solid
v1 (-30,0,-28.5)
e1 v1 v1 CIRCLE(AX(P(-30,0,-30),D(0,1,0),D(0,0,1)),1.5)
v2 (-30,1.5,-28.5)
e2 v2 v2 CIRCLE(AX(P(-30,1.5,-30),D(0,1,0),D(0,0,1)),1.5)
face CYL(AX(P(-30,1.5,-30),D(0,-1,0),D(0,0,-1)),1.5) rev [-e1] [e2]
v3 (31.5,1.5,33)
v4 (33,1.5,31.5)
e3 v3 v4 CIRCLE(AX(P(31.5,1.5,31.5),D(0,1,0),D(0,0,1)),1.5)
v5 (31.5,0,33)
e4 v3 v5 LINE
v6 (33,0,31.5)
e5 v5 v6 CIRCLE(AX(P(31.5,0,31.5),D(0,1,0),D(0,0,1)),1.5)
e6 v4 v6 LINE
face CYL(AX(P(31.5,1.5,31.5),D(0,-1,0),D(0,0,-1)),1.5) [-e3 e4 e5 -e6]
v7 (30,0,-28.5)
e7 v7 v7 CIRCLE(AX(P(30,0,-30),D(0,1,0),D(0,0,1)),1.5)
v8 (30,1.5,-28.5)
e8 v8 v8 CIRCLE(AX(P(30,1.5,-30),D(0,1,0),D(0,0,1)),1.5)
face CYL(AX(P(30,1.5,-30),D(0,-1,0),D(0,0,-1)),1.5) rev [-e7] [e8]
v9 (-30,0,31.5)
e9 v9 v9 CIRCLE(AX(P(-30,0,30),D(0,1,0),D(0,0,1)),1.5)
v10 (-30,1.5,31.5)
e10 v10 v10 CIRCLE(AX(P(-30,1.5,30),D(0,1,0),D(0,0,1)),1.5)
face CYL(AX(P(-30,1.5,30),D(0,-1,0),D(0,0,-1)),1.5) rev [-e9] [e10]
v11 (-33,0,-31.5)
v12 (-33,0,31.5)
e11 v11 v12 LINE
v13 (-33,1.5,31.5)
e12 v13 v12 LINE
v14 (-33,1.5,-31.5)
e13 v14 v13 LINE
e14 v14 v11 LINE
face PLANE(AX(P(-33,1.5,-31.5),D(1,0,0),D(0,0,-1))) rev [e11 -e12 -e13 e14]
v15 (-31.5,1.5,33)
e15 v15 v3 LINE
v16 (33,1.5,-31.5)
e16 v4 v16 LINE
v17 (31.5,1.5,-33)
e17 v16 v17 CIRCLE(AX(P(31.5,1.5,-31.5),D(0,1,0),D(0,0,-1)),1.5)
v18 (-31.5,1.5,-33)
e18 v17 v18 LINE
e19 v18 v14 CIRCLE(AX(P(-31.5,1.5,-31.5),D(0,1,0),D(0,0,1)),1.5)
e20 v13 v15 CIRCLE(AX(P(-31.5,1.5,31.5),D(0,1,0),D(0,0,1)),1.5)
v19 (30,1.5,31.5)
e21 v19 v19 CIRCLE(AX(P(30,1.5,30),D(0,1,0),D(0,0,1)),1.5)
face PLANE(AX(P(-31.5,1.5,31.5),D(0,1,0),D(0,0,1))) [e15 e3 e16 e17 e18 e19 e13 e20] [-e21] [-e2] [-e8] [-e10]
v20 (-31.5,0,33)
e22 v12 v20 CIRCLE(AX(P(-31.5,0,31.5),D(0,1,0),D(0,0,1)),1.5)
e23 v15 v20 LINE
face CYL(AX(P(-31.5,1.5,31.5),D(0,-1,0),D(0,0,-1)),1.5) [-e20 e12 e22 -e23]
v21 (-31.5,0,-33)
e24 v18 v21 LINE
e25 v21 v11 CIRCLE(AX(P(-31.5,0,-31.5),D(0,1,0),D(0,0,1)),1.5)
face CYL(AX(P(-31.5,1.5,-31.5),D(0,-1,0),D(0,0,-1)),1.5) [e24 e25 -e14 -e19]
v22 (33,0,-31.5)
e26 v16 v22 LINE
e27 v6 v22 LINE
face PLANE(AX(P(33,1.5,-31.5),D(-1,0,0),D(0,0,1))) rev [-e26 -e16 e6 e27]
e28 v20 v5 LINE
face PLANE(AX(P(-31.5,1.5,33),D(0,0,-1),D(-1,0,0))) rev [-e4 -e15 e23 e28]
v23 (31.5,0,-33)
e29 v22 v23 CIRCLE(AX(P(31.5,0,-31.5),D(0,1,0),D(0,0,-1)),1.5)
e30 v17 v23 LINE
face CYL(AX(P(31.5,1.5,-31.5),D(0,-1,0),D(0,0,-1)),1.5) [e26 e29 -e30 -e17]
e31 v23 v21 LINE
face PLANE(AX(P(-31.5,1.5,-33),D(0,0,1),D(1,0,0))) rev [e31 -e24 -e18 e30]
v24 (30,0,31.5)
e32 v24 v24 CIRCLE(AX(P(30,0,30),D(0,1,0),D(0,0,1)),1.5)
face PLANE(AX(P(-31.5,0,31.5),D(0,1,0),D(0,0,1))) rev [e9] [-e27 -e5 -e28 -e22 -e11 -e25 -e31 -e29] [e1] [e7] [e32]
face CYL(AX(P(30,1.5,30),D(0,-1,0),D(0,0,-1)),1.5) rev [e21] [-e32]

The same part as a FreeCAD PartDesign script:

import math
import FreeCAD as App
import Part
import Sketcher

V = App.Vector
Q = App.Units.Quantity

doc = App.newDocument("Part")
body = doc.addObject("PartDesign::Body", "Body")

sketch1 = body.newObject("Sketcher::SketchObject", "Sketch")
sketch1.AttachmentSupport = (doc.getObject("XZ_Plane"), [""])
sketch1.MapMode = "FlatFace"
sketch1.addGeometry([
    Part.LineSegment(V(31.5, -33, 0), V(-31.5, -33, 0)),
    Part.ArcOfCircle(Part.Circle(V(-31.5, -31.5, 0), V(0, 0, 1), 1.5), math.radians(180), math.radians(270)),
    Part.LineSegment(V(-33, -31.5, 0), V(-33, 31.5, 0)),
    Part.ArcOfCircle(Part.Circle(V(-31.5, 31.5, 0), V(0, 0, 1), 1.5), math.radians(90), math.radians(180)),
    Part.LineSegment(V(-31.5, 33, 0), V(31.5, 33, 0)),
    Part.ArcOfCircle(Part.Circle(V(31.5, 31.5, 0), V(0, 0, 1), 1.5), math.radians(0), math.radians(90)),
    Part.LineSegment(V(33, 31.5, 0), V(33, -31.5, 0)),
    Part.ArcOfCircle(Part.Circle(V(31.5, -31.5, 0), V(0, 0, 1), 1.5), math.radians(-90), math.radians(0)),
    Part.Circle(V(30, 30, 0), V(0, 0, 1), 1.5),
    Part.Circle(V(-30, 30, 0), V(0, 0, 1), 1.5),
    Part.Circle(V(30, -30, 0), V(0, 0, 1), 1.5),
    Part.Circle(V(-30, -30, 0), V(0, 0, 1), 1.5),
], False)
sketch1.addConstraint([
    Sketcher.Constraint("Tangent", 0, 2, 1, 2),
    Sketcher.Constraint("Tangent", 1, 1, 2, 1),
    Sketcher.Constraint("Tangent", 2, 2, 3, 2),
    Sketcher.Constraint("Tangent", 3, 1, 4, 1),
    Sketcher.Constraint("Tangent", 4, 2, 5, 2),
    Sketcher.Constraint("Tangent", 5, 1, 6, 1),
    Sketcher.Constraint("Tangent", 6, 2, 7, 2),
    Sketcher.Constraint("Tangent", 7, 1, 0, 1),
    Sketcher.Constraint("Horizontal", 0),
    Sketcher.Constraint("Vertical", 2),
    Sketcher.Constraint("Horizontal", 4),
    Sketcher.Constraint("Vertical", 6),
    Sketcher.Constraint("Equal", 1, 3),
    Sketcher.Constraint("Equal", 3, 5),
    Sketcher.Constraint("Equal", 5, 7),
    Sketcher.Constraint("Equal", 7, 8),
    Sketcher.Constraint("Equal", 8, 9),
    Sketcher.Constraint("Equal", 9, 10),
    Sketcher.Constraint("Equal", 10, 11),
    Sketcher.Constraint("Symmetric", 1, 3, 5, 3, -1, 1),
    Sketcher.Constraint("Symmetric", 9, 3, 10, 3, -1, 1),
    Sketcher.Constraint("Symmetric", 8, 3, 11, 3, -1, 1),
    Sketcher.Constraint("Symmetric", 8, 3, 9, 3, -2),
    Sketcher.Constraint("Equal", 4, 2),
    Sketcher.Constraint("Diameter", 8, Q("3 mm")),
    Sketcher.Constraint("DistanceX", 0, 2, 0, 1, Q("63 mm")),
    Sketcher.Constraint("DistanceX", -1, 1, 8, 3, Q("30 mm")),
    Sketcher.Constraint("DistanceY", -1, 1, 8, 3, Q("30 mm")),
])
pad1 = body.newObject("PartDesign::Pad", "Pad")
pad1.Profile = sketch1
pad1.Length = 1.5
pad1.Reversed = True

doc.recompute()
